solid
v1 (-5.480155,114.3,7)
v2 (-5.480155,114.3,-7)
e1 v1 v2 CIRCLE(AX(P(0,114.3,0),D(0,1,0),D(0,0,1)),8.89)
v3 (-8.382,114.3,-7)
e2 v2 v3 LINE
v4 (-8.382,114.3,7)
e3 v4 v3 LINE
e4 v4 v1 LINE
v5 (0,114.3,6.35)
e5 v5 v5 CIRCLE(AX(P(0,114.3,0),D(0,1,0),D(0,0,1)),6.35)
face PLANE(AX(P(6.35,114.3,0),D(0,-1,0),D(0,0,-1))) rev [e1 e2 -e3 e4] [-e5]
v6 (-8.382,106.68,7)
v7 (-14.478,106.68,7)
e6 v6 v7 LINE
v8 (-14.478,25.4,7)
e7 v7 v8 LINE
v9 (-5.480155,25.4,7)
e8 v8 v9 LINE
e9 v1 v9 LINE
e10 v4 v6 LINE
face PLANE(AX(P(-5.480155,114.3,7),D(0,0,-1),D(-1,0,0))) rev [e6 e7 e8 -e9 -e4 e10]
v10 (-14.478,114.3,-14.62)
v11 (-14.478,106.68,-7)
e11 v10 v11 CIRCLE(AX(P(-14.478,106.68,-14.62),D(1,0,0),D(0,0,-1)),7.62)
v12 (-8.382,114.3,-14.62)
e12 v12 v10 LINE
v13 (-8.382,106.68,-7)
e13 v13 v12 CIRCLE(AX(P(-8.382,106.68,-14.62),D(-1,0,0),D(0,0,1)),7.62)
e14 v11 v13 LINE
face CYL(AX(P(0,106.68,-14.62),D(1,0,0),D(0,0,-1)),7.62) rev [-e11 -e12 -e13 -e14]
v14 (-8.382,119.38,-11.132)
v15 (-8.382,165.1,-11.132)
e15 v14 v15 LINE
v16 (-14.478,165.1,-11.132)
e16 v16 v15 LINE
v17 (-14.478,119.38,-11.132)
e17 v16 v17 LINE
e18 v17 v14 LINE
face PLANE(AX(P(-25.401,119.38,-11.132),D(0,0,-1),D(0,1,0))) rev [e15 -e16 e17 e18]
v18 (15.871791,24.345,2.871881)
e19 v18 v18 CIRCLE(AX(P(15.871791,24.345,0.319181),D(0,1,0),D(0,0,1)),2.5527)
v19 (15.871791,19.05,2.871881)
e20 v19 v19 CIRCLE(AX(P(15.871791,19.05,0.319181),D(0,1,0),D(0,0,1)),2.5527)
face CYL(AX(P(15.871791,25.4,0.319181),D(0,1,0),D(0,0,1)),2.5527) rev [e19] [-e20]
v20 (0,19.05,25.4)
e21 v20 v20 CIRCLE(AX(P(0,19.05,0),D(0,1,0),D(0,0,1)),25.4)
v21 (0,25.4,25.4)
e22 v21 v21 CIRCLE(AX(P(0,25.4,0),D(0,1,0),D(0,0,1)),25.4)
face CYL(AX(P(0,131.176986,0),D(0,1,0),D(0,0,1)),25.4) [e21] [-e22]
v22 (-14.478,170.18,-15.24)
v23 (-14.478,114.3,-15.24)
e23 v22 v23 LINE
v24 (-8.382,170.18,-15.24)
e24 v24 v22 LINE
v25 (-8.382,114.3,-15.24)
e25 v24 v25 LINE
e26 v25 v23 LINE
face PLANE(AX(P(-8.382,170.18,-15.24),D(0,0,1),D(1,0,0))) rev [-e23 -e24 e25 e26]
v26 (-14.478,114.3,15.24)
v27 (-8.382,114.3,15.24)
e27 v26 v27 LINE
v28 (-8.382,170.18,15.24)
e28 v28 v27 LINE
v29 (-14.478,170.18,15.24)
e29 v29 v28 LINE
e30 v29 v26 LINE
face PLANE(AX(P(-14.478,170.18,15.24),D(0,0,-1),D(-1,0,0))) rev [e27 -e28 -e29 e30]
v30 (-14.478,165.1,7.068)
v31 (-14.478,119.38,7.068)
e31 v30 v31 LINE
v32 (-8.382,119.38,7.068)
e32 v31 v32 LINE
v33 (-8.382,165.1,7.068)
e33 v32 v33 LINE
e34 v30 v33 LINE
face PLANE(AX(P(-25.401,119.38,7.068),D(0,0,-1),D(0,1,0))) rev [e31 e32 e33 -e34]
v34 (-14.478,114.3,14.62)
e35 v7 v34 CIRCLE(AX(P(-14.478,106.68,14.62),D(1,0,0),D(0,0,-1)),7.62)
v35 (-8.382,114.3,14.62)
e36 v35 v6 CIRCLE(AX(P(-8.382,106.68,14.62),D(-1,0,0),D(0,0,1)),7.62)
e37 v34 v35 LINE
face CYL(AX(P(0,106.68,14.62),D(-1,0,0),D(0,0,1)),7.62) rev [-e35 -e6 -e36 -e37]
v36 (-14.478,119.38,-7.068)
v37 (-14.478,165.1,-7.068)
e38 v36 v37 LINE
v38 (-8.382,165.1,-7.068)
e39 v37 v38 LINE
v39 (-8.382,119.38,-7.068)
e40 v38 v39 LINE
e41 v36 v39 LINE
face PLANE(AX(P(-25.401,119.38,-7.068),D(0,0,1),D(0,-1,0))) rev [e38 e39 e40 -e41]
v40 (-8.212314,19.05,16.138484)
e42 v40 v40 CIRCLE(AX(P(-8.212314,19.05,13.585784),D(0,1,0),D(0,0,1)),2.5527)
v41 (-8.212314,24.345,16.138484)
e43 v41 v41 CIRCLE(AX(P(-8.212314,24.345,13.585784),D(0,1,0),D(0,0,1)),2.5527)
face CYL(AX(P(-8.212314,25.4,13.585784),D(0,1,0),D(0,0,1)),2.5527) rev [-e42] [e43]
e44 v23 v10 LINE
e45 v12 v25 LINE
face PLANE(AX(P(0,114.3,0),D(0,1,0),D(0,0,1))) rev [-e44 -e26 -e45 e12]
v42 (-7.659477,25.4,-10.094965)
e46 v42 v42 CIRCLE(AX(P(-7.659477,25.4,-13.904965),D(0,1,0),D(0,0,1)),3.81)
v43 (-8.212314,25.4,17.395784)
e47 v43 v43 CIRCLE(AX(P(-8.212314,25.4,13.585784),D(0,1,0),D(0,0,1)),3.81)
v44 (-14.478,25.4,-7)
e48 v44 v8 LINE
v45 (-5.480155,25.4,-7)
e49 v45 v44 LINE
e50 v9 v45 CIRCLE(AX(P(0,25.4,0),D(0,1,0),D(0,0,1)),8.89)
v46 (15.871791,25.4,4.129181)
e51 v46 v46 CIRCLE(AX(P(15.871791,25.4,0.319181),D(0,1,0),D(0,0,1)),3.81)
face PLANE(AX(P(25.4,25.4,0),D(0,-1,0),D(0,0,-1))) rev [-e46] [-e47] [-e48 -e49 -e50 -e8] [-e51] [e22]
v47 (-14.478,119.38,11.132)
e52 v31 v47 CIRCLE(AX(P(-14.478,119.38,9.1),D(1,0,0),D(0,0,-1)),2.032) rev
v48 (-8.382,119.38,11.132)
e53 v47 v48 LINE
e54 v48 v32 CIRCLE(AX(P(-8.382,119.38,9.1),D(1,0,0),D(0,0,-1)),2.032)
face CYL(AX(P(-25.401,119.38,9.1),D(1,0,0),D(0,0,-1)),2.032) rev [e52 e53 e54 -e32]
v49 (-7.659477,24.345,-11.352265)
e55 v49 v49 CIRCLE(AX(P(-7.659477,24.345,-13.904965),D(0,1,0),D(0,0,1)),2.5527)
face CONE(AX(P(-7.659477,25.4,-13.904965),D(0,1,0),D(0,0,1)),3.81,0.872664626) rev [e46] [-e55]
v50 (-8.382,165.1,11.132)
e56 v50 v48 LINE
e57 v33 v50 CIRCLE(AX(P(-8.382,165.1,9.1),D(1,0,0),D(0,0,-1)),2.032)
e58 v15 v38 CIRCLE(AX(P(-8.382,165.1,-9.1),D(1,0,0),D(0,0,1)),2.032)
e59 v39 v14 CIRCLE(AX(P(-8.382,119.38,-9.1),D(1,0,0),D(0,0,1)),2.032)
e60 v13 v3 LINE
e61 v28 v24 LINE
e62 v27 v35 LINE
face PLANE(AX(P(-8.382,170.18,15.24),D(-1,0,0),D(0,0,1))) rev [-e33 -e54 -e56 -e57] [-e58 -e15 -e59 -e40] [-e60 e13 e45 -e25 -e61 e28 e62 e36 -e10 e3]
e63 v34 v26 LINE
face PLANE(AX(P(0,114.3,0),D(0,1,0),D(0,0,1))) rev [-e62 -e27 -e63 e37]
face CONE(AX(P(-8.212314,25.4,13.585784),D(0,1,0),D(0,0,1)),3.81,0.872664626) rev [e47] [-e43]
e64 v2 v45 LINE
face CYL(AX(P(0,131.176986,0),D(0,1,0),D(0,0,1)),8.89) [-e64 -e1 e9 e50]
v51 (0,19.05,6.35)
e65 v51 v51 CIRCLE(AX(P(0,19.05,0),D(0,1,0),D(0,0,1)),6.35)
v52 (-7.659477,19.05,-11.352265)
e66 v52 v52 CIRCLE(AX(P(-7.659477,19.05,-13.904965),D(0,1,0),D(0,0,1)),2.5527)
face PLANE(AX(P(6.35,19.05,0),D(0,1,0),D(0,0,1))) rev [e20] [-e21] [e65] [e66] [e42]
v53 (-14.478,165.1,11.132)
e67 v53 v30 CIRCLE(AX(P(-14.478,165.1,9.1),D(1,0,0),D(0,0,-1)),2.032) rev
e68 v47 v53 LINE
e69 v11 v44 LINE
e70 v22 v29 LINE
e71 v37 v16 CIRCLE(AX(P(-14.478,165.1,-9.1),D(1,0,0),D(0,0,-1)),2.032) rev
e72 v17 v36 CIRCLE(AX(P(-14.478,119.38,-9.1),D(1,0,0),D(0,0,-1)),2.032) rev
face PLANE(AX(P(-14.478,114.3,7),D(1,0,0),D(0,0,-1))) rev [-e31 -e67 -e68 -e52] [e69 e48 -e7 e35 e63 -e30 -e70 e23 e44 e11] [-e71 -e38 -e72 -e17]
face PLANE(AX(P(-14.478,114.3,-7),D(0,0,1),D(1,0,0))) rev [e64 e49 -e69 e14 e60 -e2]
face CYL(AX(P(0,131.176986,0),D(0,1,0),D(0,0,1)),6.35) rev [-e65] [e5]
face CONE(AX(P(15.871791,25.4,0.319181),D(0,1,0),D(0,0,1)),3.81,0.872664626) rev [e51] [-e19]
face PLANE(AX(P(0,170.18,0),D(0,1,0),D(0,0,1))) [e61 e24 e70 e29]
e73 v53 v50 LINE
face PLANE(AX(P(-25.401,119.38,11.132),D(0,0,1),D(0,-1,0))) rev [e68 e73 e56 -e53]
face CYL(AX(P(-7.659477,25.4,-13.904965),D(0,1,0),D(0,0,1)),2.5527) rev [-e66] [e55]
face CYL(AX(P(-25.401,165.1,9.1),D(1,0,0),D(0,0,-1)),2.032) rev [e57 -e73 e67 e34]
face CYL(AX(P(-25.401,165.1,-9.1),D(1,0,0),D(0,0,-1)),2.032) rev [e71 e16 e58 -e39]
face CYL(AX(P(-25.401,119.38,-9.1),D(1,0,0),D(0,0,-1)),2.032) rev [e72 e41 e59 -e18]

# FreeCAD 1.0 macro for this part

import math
import FreeCAD as App
import Part
import Sketcher
Q = App.Units.Quantity


def edges_at(feature, points):
    """Names of the edges that pass closest to the given points."""
    edges = feature.Shape.Edges
    near = lambda p: min(range(len(edges)), key=lambda i: edges[i].distToShape(Part.Vertex(*p))[0])
    return sorted({f"Edge{near(p) + 1}" for p in points})


def add_polygon(sketch, points):
    """Adds a closed chain of lines whose ends are joined by coincident constraints."""
    first, n = sketch.GeometryCount, len(points)
    for a, b in zip(points, points[1:] + points[:1]):
        sketch.addGeometry(Part.LineSegment(App.Vector(*a, 0), App.Vector(*b, 0)), False)
    for i in range(n):
        sketch.addConstraint(Sketcher.Constraint("Coincident", first + i, 2, first + (i + 1) % n, 1))

doc = App.newDocument("Part")
body = doc.addObject("PartDesign::Body", "Body")

# Sketch on XY plane
sketch1 = body.newObject("Sketcher::SketchObject", "Sketch")
sketch1.AttachmentSupport = (doc.getObject("XY_Plane"), [""])
sketch1.MapMode = "FlatFace"
add_polygon(sketch1, [(6.35, 19.05), (25.4, 19.05), (25.4, 25.4), (8.89, 25.4), (8.89, 114.3), (6.35, 114.3)])  # lines 0-5
sketch1.addConstraint([
    Sketcher.Constraint("Horizontal", 0),
    Sketcher.Constraint("Vertical", 1),
    Sketcher.Constraint("Horizontal", 2),
    Sketcher.Constraint("Vertical", 3),
    Sketcher.Constraint("Horizontal", 4),
    Sketcher.Constraint("Vertical", 5),
    Sketcher.Constraint("DistanceX", 4, 2, 4, 1, Q("0.1 in")),
    Sketcher.Constraint("DistanceY", 3, 1, 3, 2, Q("3.5 in")),
    Sketcher.Constraint("DistanceX", -1, 1, 0, 2, Q("1 in")),
    Sketcher.Constraint("DistanceY", -1, 1, 1, 2, Q("1 in")),
    Sketcher.Constraint("DistanceX", 0, 1, 0, 2, Q("0.75 in")),
    Sketcher.Constraint("DistanceY", 1, 1, 1, 2, Q("0.25 in")),
])
revolution = body.newObject("PartDesign::Revolution", "Revolution")
revolution.Profile = sketch1
revolution.ReferenceAxis = (sketch1, ["V_Axis"])
revolution.Angle = 360

# Sketch on XZ plane
sketch2 = body.newObject("Sketcher::SketchObject", "Sketch001")
sketch2.AttachmentSupport = (doc.getObject("XZ_Plane"), [""])
sketch2.MapMode = "FlatFace"
sketch2.AttachmentOffset = App.Placement(App.Vector(0, 0, -1 * 25.4), App.Rotation())
sketch2.addGeometry([
    Part.Circle(App.Vector(-8.212314, 13.585784, 0), App.Vector(0, 0, 1), 2.5527),
    Part.Circle(App.Vector(-7.659477, -13.904965, 0), App.Vector(0, 0, 1), 2.5527),
    Part.Circle(App.Vector(15.871791, 0.319181, 0), App.Vector(0, 0, 1), 2.5527),
], False)
sketch2.addConstraint([
    Sketcher.Constraint("Equal", 0, 1),
    Sketcher.Constraint("Equal", 1, 2),
    Sketcher.Constraint("Diameter", 0, Q("0.201 in")),
    Sketcher.Constraint("DistanceX", -1, 1, 2, 3, 15.871791),
    Sketcher.Constraint("DistanceY", -1, 1, 2, 3, 0.319181),
    Sketcher.Constraint("DistanceY", 1, 3, 0, 3, 27.490748),
    Sketcher.Constraint("DistanceX", 0, 3, -1, 1, 8.212314),
    Sketcher.Constraint("DistanceY", -1, 1, 0, 3, 13.585784),
    Sketcher.Constraint("DistanceX", 1, 3, -1, 1, 7.659477),
])
doc.recompute()
hole = body.newObject("PartDesign::Hole", "Hole")
hole.Profile = sketch2
hole.ThreadType = "None"
hole.Diameter = Q("0.201 in")
hole.DepthType = "ThroughAll"
hole.HoleCutType = "Countersink"
hole.HoleCutDiameter = Q("0.3 in")
hole.HoleCutCountersinkAngle = 100
hole.Reversed = True

# Sketch on XZ plane
sketch3 = body.newObject("Sketcher::SketchObject", "Sketch002")
sketch3.AttachmentSupport = (doc.getObject("XZ_Plane"), [""])
sketch3.MapMode = "FlatFace"
sketch3.AttachmentOffset = App.Placement(App.Vector(0, 0, -1 * 25.4), App.Rotation())
sketch3.addGeometry([
    Part.LineSegment(App.Vector(-14.478, 7, 0), App.Vector(-5.480155, 7, 0)),
    Part.ArcOfCircle(Part.Circle(App.Vector(0, 0, 0), App.Vector(0, 0, 1), 8.89), math.radians(128.056657), math.radians(231.943343)),
    Part.LineSegment(App.Vector(-5.480155, -7, 0), App.Vector(-14.478, -7, 0)),
    Part.LineSegment(App.Vector(-14.478, -7, 0), App.Vector(-14.478, 7, 0)),
], False)
sketch3.addConstraint([
    Sketcher.Constraint("Coincident", 0, 2, 1, 1),
    Sketcher.Constraint("Coincident", 1, 2, 2, 1),
    Sketcher.Constraint("Coincident", 2, 2, 3, 1),
    Sketcher.Constraint("Coincident", 3, 2, 0, 1),
    Sketcher.Constraint("Horizontal", 0),
    Sketcher.Constraint("Horizontal", 2),
    Sketcher.Constraint("Vertical", 3),
    Sketcher.Constraint("Coincident", 1, 3, -1, 1),
    Sketcher.Constraint("Vertical", 0, 2, 1, 2),
    Sketcher.Constraint("Radius", 1, Q("0.35 in")),
    Sketcher.Constraint("DistanceX", 2, 2, -1, 1, Q("0.57 in")),
    Sketcher.Constraint("DistanceY", 3, 1, 3, 2, 14.0),
])
pad1 = body.newObject("PartDesign::Pad", "Pad")
pad1.Profile = sketch3
pad1.Length = Q("3.5 in")
pad1.Reversed = True

# Sketch on XZ plane
sketch4 = body.newObject("Sketcher::SketchObject", "Sketch003")
sketch4.AttachmentSupport = (doc.getObject("XZ_Plane"), [""])
sketch4.MapMode = "FlatFace"
sketch4.AttachmentOffset = App.Placement(App.Vector(0, 0, -4.5 * 25.4), App.Rotation())
add_polygon(sketch4, [(-14.478, -15.24), (-14.478, 15.24), (-8.382, 15.24), (-8.382, -15.24)])  # lines 0-3
sketch4.addConstraint([
    Sketcher.Constraint("Vertical", 0),
    Sketcher.Constraint("Horizontal", 1),
    Sketcher.Constraint("Vertical", 2),
    Sketcher.Constraint("Horizontal", 3),
    Sketcher.Constraint("DistanceY", 0, 1, 0, 2, Q("1.2 in")),
    Sketcher.Constraint("DistanceX", 1, 1, 1, 2, Q("0.24 in")),
    Sketcher.Constraint("DistanceY", -1, 1, 0, 2, Q("0.6 in")),
    Sketcher.Constraint("DistanceX", 0, 2, -1, 1, Q("0.57 in")),
])
pad2 = body.newObject("PartDesign::Pad", "Pad001")
pad2.Profile = sketch4
pad2.Length = Q("2.2 in")
pad2.Reversed = True

# Sketch on YZ plane
sketch5 = body.newObject("Sketcher::SketchObject", "Sketch004")
sketch5.AttachmentSupport = (doc.getObject("YZ_Plane"), [""])
sketch5.MapMode = "FlatFace"
sketch5.AttachmentOffset = App.Placement(App.Vector(0, 0, -0.33 * 25.4), App.Rotation())
sketch5.addGeometry([
    Part.LineSegment(App.Vector(165.1, 11.132, 0), App.Vector(119.38, 11.132, 0)),
    Part.ArcOfCircle(Part.Circle(App.Vector(119.38, 9.1, 0), App.Vector(0, 0, 1), 2.032), math.radians(90), math.radians(270)),
    Part.LineSegment(App.Vector(119.38, 7.068, 0), App.Vector(165.1, 7.068, 0)),
    Part.ArcOfCircle(Part.Circle(App.Vector(165.1, 9.1, 0), App.Vector(0, 0, 1), 2.032), math.radians(-90), math.radians(90)),
], False)
sketch5.addConstraint([
    Sketcher.Constraint("Tangent", 0, 2, 1, 1),
    Sketcher.Constraint("Tangent", 1, 2, 2, 1),
    Sketcher.Constraint("Tangent", 2, 2, 3, 1),
    Sketcher.Constraint("Tangent", 3, 2, 0, 1),
    Sketcher.Constraint("Horizontal", 0),
    Sketcher.Constraint("Horizontal", 2),
    Sketcher.Constraint("Radius", 1, Q("0.08 in")),
    Sketcher.Constraint("DistanceX", 0, 2, 0, 1, Q("1.8 in")),
    Sketcher.Constraint("DistanceX", -1, 1, 1, 3, Q("4.7 in")),
    Sketcher.Constraint("DistanceY", -1, 1, 1, 3, 9.1),
])
pocket1 = body.newObject("PartDesign::Pocket", "Pocket")
pocket1.Profile = sketch5
pocket1.Type = "UpToFirst"

# Sketch on YZ plane
sketch6 = body.newObject("Sketcher::SketchObject", "Sketch005")
sketch6.AttachmentSupport = (doc.getObject("YZ_Plane"), [""])
sketch6.MapMode = "FlatFace"
sketch6.AttachmentOffset = App.Placement(App.Vector(0, 0, -0.33 * 25.4), App.Rotation())
sketch6.addGeometry([
    Part.LineSegment(App.Vector(119.38, -11.132, 0), App.Vector(165.1, -11.132, 0)),
    Part.ArcOfCircle(Part.Circle(App.Vector(165.1, -9.1, 0), App.Vector(0, 0, 1), 2.032), math.radians(-90), math.radians(90)),
    Part.LineSegment(App.Vector(165.1, -7.068, 0), App.Vector(119.38, -7.068, 0)),
    Part.ArcOfCircle(Part.Circle(App.Vector(119.38, -9.1, 0), App.Vector(0, 0, 1), 2.032), math.radians(90), math.radians(270)),
], False)
sketch6.addConstraint([
    Sketcher.Constraint("Tangent", 0, 2, 1, 1),
    Sketcher.Constraint("Tangent", 1, 2, 2, 1),
    Sketcher.Constraint("Tangent", 2, 2, 3, 1),
    Sketcher.Constraint("Tangent", 3, 2, 0, 1),
    Sketcher.Constraint("Horizontal", 0),
    Sketcher.Constraint("Horizontal", 2),
    Sketcher.Constraint("Radius", 1, Q("0.08 in")),
    Sketcher.Constraint("DistanceX", 0, 1, 0, 2, Q("1.8 in")),
    Sketcher.Constraint("DistanceX", -1, 1, 1, 3, Q("6.5 in")),
    Sketcher.Constraint("DistanceY", 1, 3, -1, 1, 9.1),
])
pocket2 = body.newObject("PartDesign::Pocket", "Pocket001")
pocket2.Profile = sketch6
pocket2.Type = "UpToFirst"
doc.recompute()

fillet = body.newObject("PartDesign::Fillet", "Fillet")
fillet.Base = (pocket2, edges_at(pocket2, [(-11.43, 114.3, 7), (-11.43, 114.3, -7)]))
fillet.Radius = Q("0.3 in")

doc.recompute()
